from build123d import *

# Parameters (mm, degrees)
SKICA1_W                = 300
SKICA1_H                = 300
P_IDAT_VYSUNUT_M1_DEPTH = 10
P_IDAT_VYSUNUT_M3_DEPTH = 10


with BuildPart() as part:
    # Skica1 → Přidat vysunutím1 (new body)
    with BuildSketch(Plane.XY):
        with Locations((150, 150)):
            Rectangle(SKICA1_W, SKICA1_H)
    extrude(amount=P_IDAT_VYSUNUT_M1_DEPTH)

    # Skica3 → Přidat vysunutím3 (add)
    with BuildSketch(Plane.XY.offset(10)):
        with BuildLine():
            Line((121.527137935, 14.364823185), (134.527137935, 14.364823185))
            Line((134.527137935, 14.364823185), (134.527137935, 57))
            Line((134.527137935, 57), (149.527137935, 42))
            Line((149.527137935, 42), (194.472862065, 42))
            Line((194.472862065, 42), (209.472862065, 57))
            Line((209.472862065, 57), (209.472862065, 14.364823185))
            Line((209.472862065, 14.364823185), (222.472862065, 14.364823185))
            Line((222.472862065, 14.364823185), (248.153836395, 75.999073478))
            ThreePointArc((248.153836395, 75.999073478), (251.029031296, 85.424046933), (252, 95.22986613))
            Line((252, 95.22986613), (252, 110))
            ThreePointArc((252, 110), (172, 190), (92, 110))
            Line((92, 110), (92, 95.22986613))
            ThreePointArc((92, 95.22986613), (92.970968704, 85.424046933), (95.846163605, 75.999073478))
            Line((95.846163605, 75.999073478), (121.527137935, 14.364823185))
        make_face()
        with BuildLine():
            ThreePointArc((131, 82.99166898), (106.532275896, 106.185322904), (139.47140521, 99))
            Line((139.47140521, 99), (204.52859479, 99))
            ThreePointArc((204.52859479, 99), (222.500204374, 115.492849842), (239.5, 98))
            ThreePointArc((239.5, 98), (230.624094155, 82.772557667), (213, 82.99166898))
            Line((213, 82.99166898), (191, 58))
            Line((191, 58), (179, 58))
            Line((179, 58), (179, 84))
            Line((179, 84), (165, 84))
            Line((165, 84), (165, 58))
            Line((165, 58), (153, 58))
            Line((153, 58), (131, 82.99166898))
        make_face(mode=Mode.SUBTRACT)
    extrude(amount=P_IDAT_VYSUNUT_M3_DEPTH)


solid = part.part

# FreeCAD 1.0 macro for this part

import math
import FreeCAD as App
import Part
import Sketcher
from FreeCAD import Vector
Q = App.Units.Quantity


def add_polygon(sketch, points):
    """Adds a closed chain of lines whose ends are joined by coincident constraints."""
    first, n = sketch.GeometryCount, len(points)
    for a, b in zip(points, points[1:] + points[:1]):
        sketch.addGeometry(Part.LineSegment(App.Vector(*a, 0), App.Vector(*b, 0)), False)
    for i in range(n):
        sketch.addConstraint(Sketcher.Constraint("Coincident", first + i, 2, first + (i + 1) % n, 1))

doc = App.newDocument("Part")
params = doc.addObject("Spreadsheet::Sheet", "Params")
for row, (alias, value) in enumerate([
    ("sketch1_width", "300 mm"),
    ("pad1_length", "10 mm"),
    ("sketch2_radius", "50 mm"),
    ("sketch2_radius2", "80 mm"),
    ("sketch2_radius3", "17.5 mm"),
    ("sketch2_width", "13 mm"),
    ("sketch2_width2", "12 mm"),
    ("pad2_length", "10 mm"),
], start=1):
    params.set(f"A{row}", alias)
    params.set(f"B{row}", "=" + value)
    params.setAlias(f"B{row}", alias)

body = doc.addObject("PartDesign::Body", "Body")

# Sketch on XY plane
sketch1 = doc.addObject("Sketcher::SketchObject", "Sketch")
body.addObject(sketch1)
sketch1.AttachmentSupport = (doc.XY_Plane, [""])
sketch1.MapMode = "FlatFace"
add_polygon(sketch1, [(0, 300), (0, 0), (300, 0), (300, 300)])  # lines 0-3
sketch1.addConstraint(Sketcher.Constraint("Vertical", 0))
sketch1.addConstraint(Sketcher.Constraint("Horizontal", 1))
sketch1.addConstraint(Sketcher.Constraint("Vertical", 2))
sketch1.addConstraint(Sketcher.Constraint("Horizontal", 3))
sketch1.addConstraint(Sketcher.Constraint("Coincident", 0, 2, -1, 1))
sketch1.addConstraint(Sketcher.Constraint("Equal", 3, 0))
sketch1.addConstraint(Sketcher.Constraint("DistanceX", 1, 1, 1, 2, Q("300 mm")))
sketch1.setExpression("Constraints[10]", "Params.sketch1_width")
pad1 = doc.addObject("PartDesign::Pad", "Pad")
body.addObject(pad1)
pad1.Profile = sketch1
pad1.setExpression("Length", "Params.pad1_length")

# Sketch on XY plane
sketch2 = doc.addObject("Sketcher::SketchObject", "Sketch001")
body.addObject(sketch2)
sketch2.AttachmentSupport = (doc.XY_Plane, [""])
sketch2.MapMode = "FlatFace"
sketch2.AttachmentOffset = App.Placement(Vector(0, 0, 10), App.Rotation())
sketch2.addGeometry(Part.LineSegment(Vector(122, 14, 0), Vector(135, 14, 0)), False)
sketch2.addGeometry(Part.LineSegment(Vector(135, 14, 0), Vector(135, 57, 0)), False)
sketch2.addGeometry(Part.LineSegment(Vector(135, 57, 0), Vector(150, 42, 0)), False)
sketch2.addGeometry(Part.LineSegment(Vector(150, 42, 0), Vector(194, 42, 0)), False)
sketch2.addGeometry(Part.LineSegment(Vector(194, 42, 0), Vector(209, 57, 0)), False)
sketch2.addGeometry(Part.LineSegment(Vector(209, 57, 0), Vector(209, 14, 0)), False)
sketch2.addGeometry(Part.LineSegment(Vector(209, 14, 0), Vector(222, 14, 0)), False)
sketch2.addGeometry(Part.LineSegment(Vector(222, 14, 0), Vector(248, 76, 0)), False)
sketch2.addGeometry(Part.ArcOfCircle(Part.Circle(Vector(202, 95, 0), Vector(0, 0, 1), 50), math.radians(-23), math.radians(0)), False)
sketch2.addGeometry(Part.LineSegment(Vector(252, 95, 0), Vector(252, 110, 0)), False)
sketch2.addGeometry(Part.ArcOfCircle(Part.Circle(Vector(172, 110, 0), Vector(0, 0, 1), 80), math.radians(0), math.radians(180)), False)
sketch2.addGeometry(Part.LineSegment(Vector(92, 110, 0), Vector(92, 95, 0)), False)
sketch2.addGeometry(Part.ArcOfCircle(Part.Circle(Vector(142, 95, 0), Vector(0, 0, 1), 50), math.radians(-180), math.radians(-157)), False)
sketch2.addGeometry(Part.LineSegment(Vector(96, 76, 0), Vector(122, 14, 0)), False)
sketch2.addGeometry(Part.LineSegment(Vector(153, 58, 0), Vector(131, 83, 0)), False)
sketch2.addGeometry(Part.ArcOfCircle(Part.Circle(Vector(122, 98, 0), Vector(0, 0, 1), 18), math.radians(3), math.radians(301)), False)
sketch2.addGeometry(Part.LineSegment(Vector(139, 99, 0), Vector(205, 99, 0)), False)
sketch2.addGeometry(Part.ArcOfCircle(Part.Circle(Vector(222, 98, 0), Vector(0, 0, 1), 18), math.radians(-121), math.radians(177)), False)
sketch2.addGeometry(Part.LineSegment(Vector(213, 83, 0), Vector(191, 58, 0)), False)
sketch2.addGeometry(Part.LineSegment(Vector(191, 58, 0), Vector(179, 58, 0)), False)
sketch2.addGeometry(Part.LineSegment(Vector(179, 58, 0), Vector(179, 84, 0)), False)
sketch2.addGeometry(Part.LineSegment(Vector(179, 84, 0), Vector(165, 84, 0)), False)
sketch2.addGeometry(Part.LineSegment(Vector(165, 84, 0), Vector(165, 58, 0)), False)
sketch2.addGeometry(Part.LineSegment(Vector(165, 58, 0), Vector(153, 58, 0)), False)
sketch2.addConstraint(Sketcher.Constraint("Coincident", 0, 2, 1, 1))
sketch2.addConstraint(Sketcher.Constraint("Coincident", 1, 2, 2, 1))
sketch2.addConstraint(Sketcher.Constraint("Coincident", 2, 2, 3, 1))
sketch2.addConstraint(Sketcher.Constraint("Coincident", 3, 2, 4, 1))
sketch2.addConstraint(Sketcher.Constraint("Coincident", 4, 2, 5, 1))
sketch2.addConstraint(Sketcher.Constraint("Coincident", 5, 2, 6, 1))
sketch2.addConstraint(Sketcher.Constraint("Coincident", 6, 2, 7, 1))
sketch2.addConstraint(Sketcher.Constraint("Tangent", 7, 2, 8, 1))
sketch2.addConstraint(Sketcher.Constraint("Tangent", 8, 2, 9, 1))
sketch2.addConstraint(Sketcher.Constraint("Tangent", 9, 2, 10, 1))
sketch2.addConstraint(Sketcher.Constraint("Tangent", 10, 2, 11, 1))
sketch2.addConstraint(Sketcher.Constraint("Tangent", 11, 2, 12, 1))
sketch2.addConstraint(Sketcher.Constraint("Tangent", 12, 2, 13, 1))
sketch2.addConstraint(Sketcher.Constraint("Coincident", 13, 2, 0, 1))
sketch2.addConstraint(Sketcher.Constraint("Coincident", 14, 2, 15, 2))
sketch2.addConstraint(Sketcher.Constraint("Coincident", 15, 1, 16, 1))
sketch2.addConstraint(Sketcher.Constraint("Coincident", 16, 2, 17, 2))
sketch2.addConstraint(Sketcher.Constraint("Coincident", 17, 1, 18, 1))
sketch2.addConstraint(Sketcher.Constraint("Coincident", 18, 2, 19, 1))
sketch2.addConstraint(Sketcher.Constraint("Coincident", 19, 2, 20, 1))
sketch2.addConstraint(Sketcher.Constraint("Coincident", 20, 2, 21, 1))
sketch2.addConstraint(Sketcher.Constraint("Coincident", 21, 2, 22, 1))
sketch2.addConstraint(Sketcher.Constraint("Coincident", 22, 2, 23, 1))
sketch2.addConstraint(Sketcher.Constraint("Coincident", 23, 2, 14, 1))
sketch2.addConstraint(Sketcher.Constraint("Horizontal", 0))
sketch2.addConstraint(Sketcher.Constraint("Vertical", 1))
sketch2.addConstraint(Sketcher.Constraint("Horizontal", 3))
sketch2.addConstraint(Sketcher.Constraint("Vertical", 5))
sketch2.addConstraint(Sketcher.Constraint("Horizontal", 6))
sketch2.addConstraint(Sketcher.Constraint("Vertical", 9))
sketch2.addConstraint(Sketcher.Constraint("Vertical", 11))
sketch2.addConstraint(Sketcher.Constraint("Horizontal", 16))
sketch2.addConstraint(Sketcher.Constraint("Horizontal", 19))
sketch2.addConstraint(Sketcher.Constraint("Vertical", 20))
sketch2.addConstraint(Sketcher.Constraint("Horizontal", 21))
sketch2.addConstraint(Sketcher.Constraint("Vertical", 22))
sketch2.addConstraint(Sketcher.Constraint("Horizontal", 23))
sketch2.addConstraint(Sketcher.Constraint("Equal", 8, 12))
sketch2.addConstraint(Sketcher.Constraint("Equal", 15, 17))
sketch2.addConstraint(Sketcher.Constraint("Perpendicular", 2, 4))
sketch2.addConstraint(Sketcher.Constraint("Horizontal", 8, 3, 12, 3))
sketch2.addConstraint(Sketcher.Constraint("Horizontal", 15, 3, 17, 3))
sketch2.addConstraint(Sketcher.Constraint("Horizontal", 1, 2, 4, 2))
sketch2.addConstraint(Sketcher.Constraint("Horizontal", 0, 2, 5, 2))
sketch2.addConstraint(Sketcher.Constraint("Horizontal", 7, 2, 12, 2))
sketch2.addConstraint(Sketcher.Constraint("Horizontal", 14, 2, 17, 1))
sketch2.addConstraint(Sketcher.Constraint("Horizontal", 19, 2, 22, 2))
sketch2.addConstraint(Sketcher.Constraint("Equal", 0, 6))
sketch2.addConstraint(Sketcher.Constraint("Equal", 19, 23))
sketch2.addConstraint(Sketcher.Constraint("Equal", 2, 4))
sketch2.addConstraint(Sketcher.Constraint("Equal", 14, 18))
sketch2.addConstraint(Sketcher.Constraint("Radius", 8, Q("50 mm")))
sketch2.addConstraint(Sketcher.Constraint("Radius", 10, Q("80 mm")))
sketch2.addConstraint(Sketcher.Constraint("Radius", 15, Q("17.5 mm")))
sketch2.addConstraint(Sketcher.Constraint("DistanceX", 0, 1, 0, 2, Q("13 mm")))
sketch2.addConstraint(Sketcher.Constraint("DistanceX", 19, 2, 19, 1, Q("12 mm")))
sketch2.addConstraint(Sketcher.Constraint("DistanceX", 21, 2, 21, 1, Q("14 mm")))
sketch2.addConstraint(Sketcher.Constraint("DistanceY", 20, 1, 20, 2, Q("26 mm")))
sketch2.addConstraint(Sketcher.Constraint("DistanceX", -1, 1, 8, 3, Q("202 mm")))
sketch2.addConstraint(Sketcher.Constraint("DistanceY", -1, 1, 10, 3, Q("110 mm")))
sketch2.addConstraint(Sketcher.Constraint("DistanceX", -1, 1, 15, 3, Q("122 mm")))
sketch2.addConstraint(Sketcher.Constraint("DistanceY", -1, 1, 15, 3, Q("98 mm")))
sketch2.addConstraint(Sketcher.Constraint("DistanceX", -1, 1, 17, 3, Q("222 mm")))
sketch2.addConstraint(Sketcher.Constraint("DistanceY", -1, 1, 1, 2, Q("57 mm")))
sketch2.addConstraint(Sketcher.Constraint("DistanceY", -1, 1, 2, 2, Q("42 mm")))
sketch2.addConstraint(Sketcher.Constraint("DistanceX", -1, 1, 14, 2, Q("131 mm")))
sketch2.addConstraint(Sketcher.Constraint("DistanceY", -1, 1, 15, 1, Q("99 mm")))
sketch2.addConstraint(Sketcher.Constraint("DistanceY", -1, 1, 18, 2, Q("58 mm")))
sketch2.addConstraint(Sketcher.Constraint("Distance", 7, Q("66.770452 mm")))
sketch2.addConstraint(Sketcher.Constraint("DistanceX", 3, 1, 3, 2, Q("44.945724 mm")))
sketch2.addConstraint(Sketcher.Constraint("DistanceY", 1, 1, 1, 2, Q("42.635177 mm")))
sketch2.setExpression("Constraints[51]", "Params.sketch2_radius")
sketch2.setExpression("Constraints[52]", "Params.sketch2_radius2")
sketch2.setExpression("Constraints[53]", "Params.sketch2_radius3")
sketch2.setExpression("Constraints[54]", "Params.sketch2_width")
sketch2.setExpression("Constraints[55]", "Params.sketch2_width2")
pad2 = doc.addObject("PartDesign::Pad", "Pad001")
body.addObject(pad2)
pad2.Profile = sketch2
pad2.setExpression("Length", "Params.pad2_length")

doc.recompute()
